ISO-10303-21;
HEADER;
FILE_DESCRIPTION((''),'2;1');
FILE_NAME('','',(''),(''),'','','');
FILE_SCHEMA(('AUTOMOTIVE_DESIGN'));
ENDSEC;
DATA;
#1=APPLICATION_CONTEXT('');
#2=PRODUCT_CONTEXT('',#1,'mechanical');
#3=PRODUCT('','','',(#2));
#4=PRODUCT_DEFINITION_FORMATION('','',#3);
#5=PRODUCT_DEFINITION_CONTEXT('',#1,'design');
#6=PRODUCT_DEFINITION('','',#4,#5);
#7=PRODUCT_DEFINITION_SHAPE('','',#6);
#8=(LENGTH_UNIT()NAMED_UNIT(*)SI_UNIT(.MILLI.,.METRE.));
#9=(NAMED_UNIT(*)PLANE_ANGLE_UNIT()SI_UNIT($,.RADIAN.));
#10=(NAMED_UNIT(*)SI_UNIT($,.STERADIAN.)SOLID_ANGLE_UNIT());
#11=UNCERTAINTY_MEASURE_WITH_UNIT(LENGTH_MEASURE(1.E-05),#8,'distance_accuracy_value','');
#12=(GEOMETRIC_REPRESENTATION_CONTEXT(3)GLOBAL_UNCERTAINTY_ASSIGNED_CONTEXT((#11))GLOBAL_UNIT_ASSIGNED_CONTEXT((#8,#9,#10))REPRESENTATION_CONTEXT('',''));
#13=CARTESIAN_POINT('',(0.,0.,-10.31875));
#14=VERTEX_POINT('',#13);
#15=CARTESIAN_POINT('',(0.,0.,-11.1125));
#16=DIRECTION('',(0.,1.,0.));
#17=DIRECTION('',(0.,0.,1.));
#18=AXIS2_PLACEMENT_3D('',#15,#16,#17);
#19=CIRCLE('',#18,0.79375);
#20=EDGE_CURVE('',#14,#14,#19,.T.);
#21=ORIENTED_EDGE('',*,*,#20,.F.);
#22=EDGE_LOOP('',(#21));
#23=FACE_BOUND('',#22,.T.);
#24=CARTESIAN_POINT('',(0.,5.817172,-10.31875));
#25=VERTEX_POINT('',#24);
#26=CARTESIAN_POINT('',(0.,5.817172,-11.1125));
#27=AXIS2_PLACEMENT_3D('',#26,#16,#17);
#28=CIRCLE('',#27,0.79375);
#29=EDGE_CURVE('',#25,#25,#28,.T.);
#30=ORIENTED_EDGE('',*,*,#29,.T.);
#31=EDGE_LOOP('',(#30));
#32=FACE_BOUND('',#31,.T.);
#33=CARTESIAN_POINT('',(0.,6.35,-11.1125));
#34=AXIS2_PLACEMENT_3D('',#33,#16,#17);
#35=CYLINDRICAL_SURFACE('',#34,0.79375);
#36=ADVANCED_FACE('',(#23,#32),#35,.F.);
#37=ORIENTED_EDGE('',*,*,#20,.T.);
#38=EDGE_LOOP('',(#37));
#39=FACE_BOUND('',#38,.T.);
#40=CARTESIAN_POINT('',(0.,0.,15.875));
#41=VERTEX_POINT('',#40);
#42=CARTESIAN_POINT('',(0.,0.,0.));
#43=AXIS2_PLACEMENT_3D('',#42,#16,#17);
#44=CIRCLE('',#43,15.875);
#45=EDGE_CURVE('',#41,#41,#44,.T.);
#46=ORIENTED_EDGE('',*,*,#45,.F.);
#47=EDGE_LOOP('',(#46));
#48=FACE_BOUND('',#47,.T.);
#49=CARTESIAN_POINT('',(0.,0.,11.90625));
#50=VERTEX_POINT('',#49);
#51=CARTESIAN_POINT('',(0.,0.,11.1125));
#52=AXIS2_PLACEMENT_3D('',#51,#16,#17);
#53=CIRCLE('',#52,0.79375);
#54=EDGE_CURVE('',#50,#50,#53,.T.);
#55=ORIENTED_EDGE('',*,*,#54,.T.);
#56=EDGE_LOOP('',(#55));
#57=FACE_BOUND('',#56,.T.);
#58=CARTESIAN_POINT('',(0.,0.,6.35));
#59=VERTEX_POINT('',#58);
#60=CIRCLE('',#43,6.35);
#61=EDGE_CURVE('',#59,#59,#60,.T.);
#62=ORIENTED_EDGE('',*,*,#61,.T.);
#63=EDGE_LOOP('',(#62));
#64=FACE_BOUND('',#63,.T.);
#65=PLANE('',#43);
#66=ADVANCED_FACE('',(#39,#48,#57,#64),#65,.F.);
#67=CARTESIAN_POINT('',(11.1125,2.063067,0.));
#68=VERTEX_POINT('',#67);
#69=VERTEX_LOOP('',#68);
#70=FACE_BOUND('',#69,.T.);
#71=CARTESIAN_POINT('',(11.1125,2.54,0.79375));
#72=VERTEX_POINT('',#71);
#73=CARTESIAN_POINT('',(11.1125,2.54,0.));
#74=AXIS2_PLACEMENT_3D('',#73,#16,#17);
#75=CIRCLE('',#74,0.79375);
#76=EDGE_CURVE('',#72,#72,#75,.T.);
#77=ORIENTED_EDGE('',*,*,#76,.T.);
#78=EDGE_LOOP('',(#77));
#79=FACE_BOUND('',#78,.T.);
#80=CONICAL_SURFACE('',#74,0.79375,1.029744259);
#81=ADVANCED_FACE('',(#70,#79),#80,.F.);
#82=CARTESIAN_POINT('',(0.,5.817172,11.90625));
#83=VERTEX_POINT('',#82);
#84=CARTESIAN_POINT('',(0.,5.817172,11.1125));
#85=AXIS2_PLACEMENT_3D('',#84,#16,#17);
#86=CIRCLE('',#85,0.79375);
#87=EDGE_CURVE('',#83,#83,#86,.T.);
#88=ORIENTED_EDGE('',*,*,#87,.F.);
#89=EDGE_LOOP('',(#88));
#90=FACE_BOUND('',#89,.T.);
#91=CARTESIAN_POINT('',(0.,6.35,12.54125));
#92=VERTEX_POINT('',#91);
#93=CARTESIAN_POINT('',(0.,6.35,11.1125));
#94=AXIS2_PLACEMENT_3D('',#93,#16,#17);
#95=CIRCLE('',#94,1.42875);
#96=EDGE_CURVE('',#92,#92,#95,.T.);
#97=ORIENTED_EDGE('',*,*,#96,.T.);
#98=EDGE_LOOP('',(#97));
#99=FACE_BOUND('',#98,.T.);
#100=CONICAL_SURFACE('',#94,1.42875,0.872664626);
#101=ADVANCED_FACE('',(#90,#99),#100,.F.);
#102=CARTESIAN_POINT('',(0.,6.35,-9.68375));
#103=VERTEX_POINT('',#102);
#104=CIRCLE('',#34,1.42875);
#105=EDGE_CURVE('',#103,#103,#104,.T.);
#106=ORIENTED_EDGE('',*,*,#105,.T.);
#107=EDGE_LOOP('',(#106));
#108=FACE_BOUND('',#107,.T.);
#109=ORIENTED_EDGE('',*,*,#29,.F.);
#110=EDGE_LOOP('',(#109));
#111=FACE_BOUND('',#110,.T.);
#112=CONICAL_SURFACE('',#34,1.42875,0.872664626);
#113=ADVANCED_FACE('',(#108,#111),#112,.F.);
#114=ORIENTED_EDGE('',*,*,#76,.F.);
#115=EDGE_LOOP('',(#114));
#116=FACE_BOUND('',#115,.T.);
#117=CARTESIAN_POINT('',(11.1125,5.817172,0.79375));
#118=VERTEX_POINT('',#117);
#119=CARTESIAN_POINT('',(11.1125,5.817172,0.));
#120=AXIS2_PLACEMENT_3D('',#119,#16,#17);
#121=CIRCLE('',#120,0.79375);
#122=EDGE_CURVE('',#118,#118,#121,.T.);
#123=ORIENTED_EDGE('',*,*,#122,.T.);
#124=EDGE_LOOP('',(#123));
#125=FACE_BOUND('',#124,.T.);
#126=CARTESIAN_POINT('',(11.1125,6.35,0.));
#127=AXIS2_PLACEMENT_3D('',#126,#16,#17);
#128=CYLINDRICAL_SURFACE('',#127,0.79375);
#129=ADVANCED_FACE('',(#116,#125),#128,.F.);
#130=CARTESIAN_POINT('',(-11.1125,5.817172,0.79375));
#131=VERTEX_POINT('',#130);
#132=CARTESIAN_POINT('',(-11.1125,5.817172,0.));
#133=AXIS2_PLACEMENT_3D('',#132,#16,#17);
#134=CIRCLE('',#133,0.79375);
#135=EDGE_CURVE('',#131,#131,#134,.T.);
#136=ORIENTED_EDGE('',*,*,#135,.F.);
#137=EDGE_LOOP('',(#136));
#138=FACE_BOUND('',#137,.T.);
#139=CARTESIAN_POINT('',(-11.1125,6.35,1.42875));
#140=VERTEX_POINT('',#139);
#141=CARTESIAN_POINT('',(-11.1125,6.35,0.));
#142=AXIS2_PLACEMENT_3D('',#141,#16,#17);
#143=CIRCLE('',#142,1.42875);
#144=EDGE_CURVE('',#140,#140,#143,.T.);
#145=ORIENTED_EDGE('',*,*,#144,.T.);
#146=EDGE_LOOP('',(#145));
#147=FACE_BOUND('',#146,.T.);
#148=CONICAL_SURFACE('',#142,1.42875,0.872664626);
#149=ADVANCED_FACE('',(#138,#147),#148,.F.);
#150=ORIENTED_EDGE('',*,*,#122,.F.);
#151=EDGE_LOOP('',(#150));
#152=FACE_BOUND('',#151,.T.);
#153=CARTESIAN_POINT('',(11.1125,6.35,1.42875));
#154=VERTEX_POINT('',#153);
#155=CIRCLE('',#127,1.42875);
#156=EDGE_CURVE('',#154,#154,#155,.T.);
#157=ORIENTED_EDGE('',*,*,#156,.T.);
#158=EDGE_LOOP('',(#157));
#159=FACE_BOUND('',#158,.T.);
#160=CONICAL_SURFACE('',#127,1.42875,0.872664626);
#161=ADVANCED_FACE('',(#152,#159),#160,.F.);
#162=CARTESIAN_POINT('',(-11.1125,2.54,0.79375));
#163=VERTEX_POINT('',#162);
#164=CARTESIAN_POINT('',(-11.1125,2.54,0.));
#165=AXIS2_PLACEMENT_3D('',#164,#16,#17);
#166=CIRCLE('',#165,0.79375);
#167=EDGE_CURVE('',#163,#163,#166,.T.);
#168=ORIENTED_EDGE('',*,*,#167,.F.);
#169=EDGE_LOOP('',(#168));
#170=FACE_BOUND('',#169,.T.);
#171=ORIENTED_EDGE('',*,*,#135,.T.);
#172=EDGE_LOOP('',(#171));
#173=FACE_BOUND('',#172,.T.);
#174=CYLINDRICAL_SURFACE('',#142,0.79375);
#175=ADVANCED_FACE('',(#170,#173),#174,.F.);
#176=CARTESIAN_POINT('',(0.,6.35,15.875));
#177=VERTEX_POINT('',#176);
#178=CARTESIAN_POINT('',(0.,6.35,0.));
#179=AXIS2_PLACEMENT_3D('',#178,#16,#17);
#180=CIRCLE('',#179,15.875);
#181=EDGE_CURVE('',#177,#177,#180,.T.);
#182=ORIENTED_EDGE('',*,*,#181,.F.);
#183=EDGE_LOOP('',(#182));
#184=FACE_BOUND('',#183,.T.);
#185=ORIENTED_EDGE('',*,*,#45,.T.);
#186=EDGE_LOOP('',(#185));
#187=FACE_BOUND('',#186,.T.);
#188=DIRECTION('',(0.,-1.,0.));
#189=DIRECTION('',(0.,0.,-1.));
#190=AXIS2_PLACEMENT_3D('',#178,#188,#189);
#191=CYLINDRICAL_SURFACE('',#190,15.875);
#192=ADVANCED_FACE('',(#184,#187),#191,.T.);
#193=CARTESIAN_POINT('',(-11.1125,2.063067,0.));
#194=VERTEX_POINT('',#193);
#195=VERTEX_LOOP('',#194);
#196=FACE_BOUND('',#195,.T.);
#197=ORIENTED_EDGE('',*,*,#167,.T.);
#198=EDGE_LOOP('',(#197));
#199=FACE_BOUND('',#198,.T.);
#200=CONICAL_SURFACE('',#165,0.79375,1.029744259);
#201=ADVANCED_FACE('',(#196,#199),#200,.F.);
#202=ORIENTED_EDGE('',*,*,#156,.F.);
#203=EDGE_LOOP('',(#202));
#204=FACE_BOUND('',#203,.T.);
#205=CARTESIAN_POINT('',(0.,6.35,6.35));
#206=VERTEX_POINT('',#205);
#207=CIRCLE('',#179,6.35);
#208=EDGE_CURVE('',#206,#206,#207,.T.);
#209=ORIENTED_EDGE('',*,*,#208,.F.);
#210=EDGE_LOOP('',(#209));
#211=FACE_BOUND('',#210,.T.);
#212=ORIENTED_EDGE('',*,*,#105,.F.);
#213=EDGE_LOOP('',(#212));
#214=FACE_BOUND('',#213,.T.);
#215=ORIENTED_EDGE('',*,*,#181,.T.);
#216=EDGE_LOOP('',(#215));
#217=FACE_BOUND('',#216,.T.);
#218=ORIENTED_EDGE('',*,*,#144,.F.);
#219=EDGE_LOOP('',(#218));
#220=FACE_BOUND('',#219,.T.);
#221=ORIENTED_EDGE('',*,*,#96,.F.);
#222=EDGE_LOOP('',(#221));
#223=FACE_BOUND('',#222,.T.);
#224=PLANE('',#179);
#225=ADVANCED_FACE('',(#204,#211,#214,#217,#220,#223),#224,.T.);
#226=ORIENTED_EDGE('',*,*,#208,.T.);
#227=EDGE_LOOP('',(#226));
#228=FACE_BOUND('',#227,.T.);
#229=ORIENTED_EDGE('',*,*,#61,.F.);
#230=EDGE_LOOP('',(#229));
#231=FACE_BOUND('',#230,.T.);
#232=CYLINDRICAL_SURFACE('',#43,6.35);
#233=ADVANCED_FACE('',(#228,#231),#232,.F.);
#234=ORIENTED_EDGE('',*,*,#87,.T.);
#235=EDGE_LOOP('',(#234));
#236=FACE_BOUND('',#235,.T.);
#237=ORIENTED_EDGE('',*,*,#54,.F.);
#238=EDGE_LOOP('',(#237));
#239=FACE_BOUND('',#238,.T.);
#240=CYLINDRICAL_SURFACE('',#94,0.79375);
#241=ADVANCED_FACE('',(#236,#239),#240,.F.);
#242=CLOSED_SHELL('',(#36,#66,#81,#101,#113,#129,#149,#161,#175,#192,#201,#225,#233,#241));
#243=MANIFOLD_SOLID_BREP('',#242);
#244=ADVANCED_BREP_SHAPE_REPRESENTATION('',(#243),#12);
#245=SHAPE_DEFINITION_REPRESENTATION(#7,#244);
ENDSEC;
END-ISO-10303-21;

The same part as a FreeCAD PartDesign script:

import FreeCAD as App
import Part
import Sketcher
Q = App.Units.Quantity

doc = App.newDocument("Part")
params = doc.addObject("Spreadsheet::Sheet", "Params")
for row, (alias, value) in enumerate([
    ("sketch1_diameter", "1.25 in"),
    ("pad1_length", "0.25 in"),
    ("sketch2_diameter", "0.5 in"),
    ("sketch3_diameter", "0.0625 in"),
    ("hole_diameter", "0.0625 in"),
    ("hole_csink_diameter", "0.1125 in"),
    ("groove_angle", "360 deg"),
], start=1):
    params.set(f"A{row}", alias)
    params.set(f"B{row}", "=" + value)
    params.setAlias(f"B{row}", alias)

body = doc.addObject("PartDesign::Body", "Body")

# Sketch on XZ plane
sketch1 = body.newObject("Sketcher::SketchObject", "Sketch")
sketch1.AttachmentSupport = (doc.getObject("XZ_Plane"), [""])
sketch1.MapMode = "FlatFace"
sketch1.addGeometry(Part.Circle(App.Vector(0, 0, 0), App.Vector(0, 0, 1), 16), False)
sketch1.addConstraint(Sketcher.Constraint("Coincident", 0, 3, -1, 1))
sketch1.addConstraint(Sketcher.Constraint("Diameter", 0, Q("1.25 in")))
sketch1.setExpression("Constraints[1]", "Params.sketch1_diameter")
pad1 = body.newObject("PartDesign::Pad", "Pad")
pad1.Profile = sketch1
pad1.setExpression("Length", "Params.pad1_length")
pad1.Reversed = True

# Sketch on XZ plane
sketch2 = body.newObject("Sketcher::SketchObject", "Sketch001")
sketch2.AttachmentSupport = (doc.getObject("XZ_Plane"), [""])
sketch2.MapMode = "FlatFace"
sketch2.AttachmentOffset = App.Placement(App.Vector(0, 0, -0.25 * 25.4), App.Rotation())
sketch2.addGeometry(Part.Circle(App.Vector(0, 0, 0), App.Vector(0, 0, 1), 6), False)
sketch2.addConstraint(Sketcher.Constraint("Coincident", 0, 3, -1, 1))
sketch2.addConstraint(Sketcher.Constraint("Diameter", 0, Q("0.5 in")))
sketch2.setExpression("Constraints[1]", "Params.sketch2_diameter")
pocket1 = body.newObject("PartDesign::Pocket", "Pocket")
pocket1.Profile = sketch2
pocket1.Type = "ThroughAll"
pocket1.Reversed = True

# Sketch on XZ plane
sketch3 = body.newObject("Sketcher::SketchObject", "Sketch002")
sketch3.AttachmentSupport = (doc.getObject("XZ_Plane"), [""])
sketch3.MapMode = "FlatFace"
sketch3.AttachmentOffset = App.Placement(App.Vector(0, 0, -0.25 * 25.4), App.Rotation())
sketch3.addGeometry(Part.Circle(App.Vector(0, -11.1, 0), App.Vector(0, 0, 1), 0.8), False)
sketch3.addConstraint(Sketcher.Constraint("PointOnObject", 0, 3, -2))
sketch3.addConstraint(Sketcher.Constraint("Diameter", 0, Q("0.0625 in")))
sketch3.addConstraint(Sketcher.Constraint("DistanceY", 0, 3, -1, 1, Q("0.4375 in")))
sketch3.setExpression("Constraints[1]", "Params.sketch3_diameter")
doc.recompute()
hole = body.newObject("PartDesign::Hole", "Hole")
hole.Profile = sketch3
hole.ThreadType = "None"
hole.setExpression("Diameter", "Params.hole_diameter")
hole.DepthType = "ThroughAll"
hole.HoleCutType = "Countersink"
hole.setExpression("HoleCutDiameter", "Params.hole_csink_diameter")
hole.HoleCutCountersinkAngle = 100
hole.Reversed = True
doc.recompute()

polarpattern = body.newObject("PartDesign::PolarPattern", "PolarPattern")
polarpattern.Originals = [hole]
polarpattern.Axis = (doc.getObject("Y_Axis"), [""])
polarpattern.Angle = 360
polarpattern.Occurrences = 2
body.Tip = polarpattern

# Sketch on YZ plane
sketch4 = body.newObject("Sketcher::SketchObject", "Sketch003")
sketch4.AttachmentSupport = (doc.getObject("YZ_Plane"), [""])
sketch4.MapMode = "FlatFace"
sketch4.AttachmentOffset = App.Placement(App.Vector(0, 0, 0.4375 * 25.4), App.Rotation())
sketch4.addGeometry(Part.LineSegment(App.Vector(2.1, 0, 0), App.Vector(6.3, 0, 0)), False)
sketch4.addGeometry(Part.LineSegment(App.Vector(6.3, 0, 0), App.Vector(6.3, 1.4, 0)), False)
sketch4.addGeometry(Part.LineSegment(App.Vector(6.3, 1.4, 0), App.Vector(5.8, 0.8, 0)), False)
sketch4.addGeometry(Part.LineSegment(App.Vector(5.8, 0.8, 0), App.Vector(2.5, 0.8, 0)), False)
sketch4.addGeometry(Part.LineSegment(App.Vector(2.5, 0.8, 0), App.Vector(2.1, 0, 0)), False)
sketch4.addConstraint(Sketcher.Constraint("Coincident", 0, 2, 1, 1))
sketch4.addConstraint(Sketcher.Constraint("Coincident", 1, 2, 2, 1))
sketch4.addConstraint(Sketcher.Constraint("Coincident", 2, 2, 3, 1))
sketch4.addConstraint(Sketcher.Constraint("Coincident", 3, 2, 4, 1))
sketch4.addConstraint(Sketcher.Constraint("Coincident", 4, 2, 0, 1))
sketch4.addConstraint(Sketcher.Constraint("Horizontal", 0))
sketch4.addConstraint(Sketcher.Constraint("Vertical", 1))
sketch4.addConstraint(Sketcher.Constraint("Horizontal", 3))
sketch4.addConstraint(Sketcher.Constraint("PointOnObject", 0, 2, -1))
sketch4.addConstraint(Sketcher.Constraint("Angle", 2, Q("-130 deg")))
sketch4.addConstraint(Sketcher.Constraint("Angle", 4, Q("-121 deg")))
sketch4.addConstraint(Sketcher.Constraint("DistanceX", -1, 1, 3, 2, Q("0.1 in")))
sketch4.addConstraint(Sketcher.Constraint("DistanceX", -1, 1, 0, 2, Q("0.25 in")))
sketch4.addConstraint(Sketcher.Constraint("DistanceY", -1, 1, 2, 2, Q("0.03125 in")))
sketch4.addConstraint(Sketcher.Constraint("DistanceY", 2, 2, 1, 2, Q("0.025 in")))
groove = body.newObject("PartDesign::Groove", "Groove")
groove.Profile = sketch4
groove.ReferenceAxis = (sketch4, ["H_Axis"])
groove.setExpression("Angle", "Params.groove_angle")
doc.recompute()

polarpattern2 = body.newObject("PartDesign::PolarPattern", "PolarPattern001")
polarpattern2.Originals = [groove]
polarpattern2.Axis = (doc.getObject("Y_Axis"), [""])
polarpattern2.Angle = 360
polarpattern2.Occurrences = 2
body.Tip = polarpattern2

doc.recompute()
